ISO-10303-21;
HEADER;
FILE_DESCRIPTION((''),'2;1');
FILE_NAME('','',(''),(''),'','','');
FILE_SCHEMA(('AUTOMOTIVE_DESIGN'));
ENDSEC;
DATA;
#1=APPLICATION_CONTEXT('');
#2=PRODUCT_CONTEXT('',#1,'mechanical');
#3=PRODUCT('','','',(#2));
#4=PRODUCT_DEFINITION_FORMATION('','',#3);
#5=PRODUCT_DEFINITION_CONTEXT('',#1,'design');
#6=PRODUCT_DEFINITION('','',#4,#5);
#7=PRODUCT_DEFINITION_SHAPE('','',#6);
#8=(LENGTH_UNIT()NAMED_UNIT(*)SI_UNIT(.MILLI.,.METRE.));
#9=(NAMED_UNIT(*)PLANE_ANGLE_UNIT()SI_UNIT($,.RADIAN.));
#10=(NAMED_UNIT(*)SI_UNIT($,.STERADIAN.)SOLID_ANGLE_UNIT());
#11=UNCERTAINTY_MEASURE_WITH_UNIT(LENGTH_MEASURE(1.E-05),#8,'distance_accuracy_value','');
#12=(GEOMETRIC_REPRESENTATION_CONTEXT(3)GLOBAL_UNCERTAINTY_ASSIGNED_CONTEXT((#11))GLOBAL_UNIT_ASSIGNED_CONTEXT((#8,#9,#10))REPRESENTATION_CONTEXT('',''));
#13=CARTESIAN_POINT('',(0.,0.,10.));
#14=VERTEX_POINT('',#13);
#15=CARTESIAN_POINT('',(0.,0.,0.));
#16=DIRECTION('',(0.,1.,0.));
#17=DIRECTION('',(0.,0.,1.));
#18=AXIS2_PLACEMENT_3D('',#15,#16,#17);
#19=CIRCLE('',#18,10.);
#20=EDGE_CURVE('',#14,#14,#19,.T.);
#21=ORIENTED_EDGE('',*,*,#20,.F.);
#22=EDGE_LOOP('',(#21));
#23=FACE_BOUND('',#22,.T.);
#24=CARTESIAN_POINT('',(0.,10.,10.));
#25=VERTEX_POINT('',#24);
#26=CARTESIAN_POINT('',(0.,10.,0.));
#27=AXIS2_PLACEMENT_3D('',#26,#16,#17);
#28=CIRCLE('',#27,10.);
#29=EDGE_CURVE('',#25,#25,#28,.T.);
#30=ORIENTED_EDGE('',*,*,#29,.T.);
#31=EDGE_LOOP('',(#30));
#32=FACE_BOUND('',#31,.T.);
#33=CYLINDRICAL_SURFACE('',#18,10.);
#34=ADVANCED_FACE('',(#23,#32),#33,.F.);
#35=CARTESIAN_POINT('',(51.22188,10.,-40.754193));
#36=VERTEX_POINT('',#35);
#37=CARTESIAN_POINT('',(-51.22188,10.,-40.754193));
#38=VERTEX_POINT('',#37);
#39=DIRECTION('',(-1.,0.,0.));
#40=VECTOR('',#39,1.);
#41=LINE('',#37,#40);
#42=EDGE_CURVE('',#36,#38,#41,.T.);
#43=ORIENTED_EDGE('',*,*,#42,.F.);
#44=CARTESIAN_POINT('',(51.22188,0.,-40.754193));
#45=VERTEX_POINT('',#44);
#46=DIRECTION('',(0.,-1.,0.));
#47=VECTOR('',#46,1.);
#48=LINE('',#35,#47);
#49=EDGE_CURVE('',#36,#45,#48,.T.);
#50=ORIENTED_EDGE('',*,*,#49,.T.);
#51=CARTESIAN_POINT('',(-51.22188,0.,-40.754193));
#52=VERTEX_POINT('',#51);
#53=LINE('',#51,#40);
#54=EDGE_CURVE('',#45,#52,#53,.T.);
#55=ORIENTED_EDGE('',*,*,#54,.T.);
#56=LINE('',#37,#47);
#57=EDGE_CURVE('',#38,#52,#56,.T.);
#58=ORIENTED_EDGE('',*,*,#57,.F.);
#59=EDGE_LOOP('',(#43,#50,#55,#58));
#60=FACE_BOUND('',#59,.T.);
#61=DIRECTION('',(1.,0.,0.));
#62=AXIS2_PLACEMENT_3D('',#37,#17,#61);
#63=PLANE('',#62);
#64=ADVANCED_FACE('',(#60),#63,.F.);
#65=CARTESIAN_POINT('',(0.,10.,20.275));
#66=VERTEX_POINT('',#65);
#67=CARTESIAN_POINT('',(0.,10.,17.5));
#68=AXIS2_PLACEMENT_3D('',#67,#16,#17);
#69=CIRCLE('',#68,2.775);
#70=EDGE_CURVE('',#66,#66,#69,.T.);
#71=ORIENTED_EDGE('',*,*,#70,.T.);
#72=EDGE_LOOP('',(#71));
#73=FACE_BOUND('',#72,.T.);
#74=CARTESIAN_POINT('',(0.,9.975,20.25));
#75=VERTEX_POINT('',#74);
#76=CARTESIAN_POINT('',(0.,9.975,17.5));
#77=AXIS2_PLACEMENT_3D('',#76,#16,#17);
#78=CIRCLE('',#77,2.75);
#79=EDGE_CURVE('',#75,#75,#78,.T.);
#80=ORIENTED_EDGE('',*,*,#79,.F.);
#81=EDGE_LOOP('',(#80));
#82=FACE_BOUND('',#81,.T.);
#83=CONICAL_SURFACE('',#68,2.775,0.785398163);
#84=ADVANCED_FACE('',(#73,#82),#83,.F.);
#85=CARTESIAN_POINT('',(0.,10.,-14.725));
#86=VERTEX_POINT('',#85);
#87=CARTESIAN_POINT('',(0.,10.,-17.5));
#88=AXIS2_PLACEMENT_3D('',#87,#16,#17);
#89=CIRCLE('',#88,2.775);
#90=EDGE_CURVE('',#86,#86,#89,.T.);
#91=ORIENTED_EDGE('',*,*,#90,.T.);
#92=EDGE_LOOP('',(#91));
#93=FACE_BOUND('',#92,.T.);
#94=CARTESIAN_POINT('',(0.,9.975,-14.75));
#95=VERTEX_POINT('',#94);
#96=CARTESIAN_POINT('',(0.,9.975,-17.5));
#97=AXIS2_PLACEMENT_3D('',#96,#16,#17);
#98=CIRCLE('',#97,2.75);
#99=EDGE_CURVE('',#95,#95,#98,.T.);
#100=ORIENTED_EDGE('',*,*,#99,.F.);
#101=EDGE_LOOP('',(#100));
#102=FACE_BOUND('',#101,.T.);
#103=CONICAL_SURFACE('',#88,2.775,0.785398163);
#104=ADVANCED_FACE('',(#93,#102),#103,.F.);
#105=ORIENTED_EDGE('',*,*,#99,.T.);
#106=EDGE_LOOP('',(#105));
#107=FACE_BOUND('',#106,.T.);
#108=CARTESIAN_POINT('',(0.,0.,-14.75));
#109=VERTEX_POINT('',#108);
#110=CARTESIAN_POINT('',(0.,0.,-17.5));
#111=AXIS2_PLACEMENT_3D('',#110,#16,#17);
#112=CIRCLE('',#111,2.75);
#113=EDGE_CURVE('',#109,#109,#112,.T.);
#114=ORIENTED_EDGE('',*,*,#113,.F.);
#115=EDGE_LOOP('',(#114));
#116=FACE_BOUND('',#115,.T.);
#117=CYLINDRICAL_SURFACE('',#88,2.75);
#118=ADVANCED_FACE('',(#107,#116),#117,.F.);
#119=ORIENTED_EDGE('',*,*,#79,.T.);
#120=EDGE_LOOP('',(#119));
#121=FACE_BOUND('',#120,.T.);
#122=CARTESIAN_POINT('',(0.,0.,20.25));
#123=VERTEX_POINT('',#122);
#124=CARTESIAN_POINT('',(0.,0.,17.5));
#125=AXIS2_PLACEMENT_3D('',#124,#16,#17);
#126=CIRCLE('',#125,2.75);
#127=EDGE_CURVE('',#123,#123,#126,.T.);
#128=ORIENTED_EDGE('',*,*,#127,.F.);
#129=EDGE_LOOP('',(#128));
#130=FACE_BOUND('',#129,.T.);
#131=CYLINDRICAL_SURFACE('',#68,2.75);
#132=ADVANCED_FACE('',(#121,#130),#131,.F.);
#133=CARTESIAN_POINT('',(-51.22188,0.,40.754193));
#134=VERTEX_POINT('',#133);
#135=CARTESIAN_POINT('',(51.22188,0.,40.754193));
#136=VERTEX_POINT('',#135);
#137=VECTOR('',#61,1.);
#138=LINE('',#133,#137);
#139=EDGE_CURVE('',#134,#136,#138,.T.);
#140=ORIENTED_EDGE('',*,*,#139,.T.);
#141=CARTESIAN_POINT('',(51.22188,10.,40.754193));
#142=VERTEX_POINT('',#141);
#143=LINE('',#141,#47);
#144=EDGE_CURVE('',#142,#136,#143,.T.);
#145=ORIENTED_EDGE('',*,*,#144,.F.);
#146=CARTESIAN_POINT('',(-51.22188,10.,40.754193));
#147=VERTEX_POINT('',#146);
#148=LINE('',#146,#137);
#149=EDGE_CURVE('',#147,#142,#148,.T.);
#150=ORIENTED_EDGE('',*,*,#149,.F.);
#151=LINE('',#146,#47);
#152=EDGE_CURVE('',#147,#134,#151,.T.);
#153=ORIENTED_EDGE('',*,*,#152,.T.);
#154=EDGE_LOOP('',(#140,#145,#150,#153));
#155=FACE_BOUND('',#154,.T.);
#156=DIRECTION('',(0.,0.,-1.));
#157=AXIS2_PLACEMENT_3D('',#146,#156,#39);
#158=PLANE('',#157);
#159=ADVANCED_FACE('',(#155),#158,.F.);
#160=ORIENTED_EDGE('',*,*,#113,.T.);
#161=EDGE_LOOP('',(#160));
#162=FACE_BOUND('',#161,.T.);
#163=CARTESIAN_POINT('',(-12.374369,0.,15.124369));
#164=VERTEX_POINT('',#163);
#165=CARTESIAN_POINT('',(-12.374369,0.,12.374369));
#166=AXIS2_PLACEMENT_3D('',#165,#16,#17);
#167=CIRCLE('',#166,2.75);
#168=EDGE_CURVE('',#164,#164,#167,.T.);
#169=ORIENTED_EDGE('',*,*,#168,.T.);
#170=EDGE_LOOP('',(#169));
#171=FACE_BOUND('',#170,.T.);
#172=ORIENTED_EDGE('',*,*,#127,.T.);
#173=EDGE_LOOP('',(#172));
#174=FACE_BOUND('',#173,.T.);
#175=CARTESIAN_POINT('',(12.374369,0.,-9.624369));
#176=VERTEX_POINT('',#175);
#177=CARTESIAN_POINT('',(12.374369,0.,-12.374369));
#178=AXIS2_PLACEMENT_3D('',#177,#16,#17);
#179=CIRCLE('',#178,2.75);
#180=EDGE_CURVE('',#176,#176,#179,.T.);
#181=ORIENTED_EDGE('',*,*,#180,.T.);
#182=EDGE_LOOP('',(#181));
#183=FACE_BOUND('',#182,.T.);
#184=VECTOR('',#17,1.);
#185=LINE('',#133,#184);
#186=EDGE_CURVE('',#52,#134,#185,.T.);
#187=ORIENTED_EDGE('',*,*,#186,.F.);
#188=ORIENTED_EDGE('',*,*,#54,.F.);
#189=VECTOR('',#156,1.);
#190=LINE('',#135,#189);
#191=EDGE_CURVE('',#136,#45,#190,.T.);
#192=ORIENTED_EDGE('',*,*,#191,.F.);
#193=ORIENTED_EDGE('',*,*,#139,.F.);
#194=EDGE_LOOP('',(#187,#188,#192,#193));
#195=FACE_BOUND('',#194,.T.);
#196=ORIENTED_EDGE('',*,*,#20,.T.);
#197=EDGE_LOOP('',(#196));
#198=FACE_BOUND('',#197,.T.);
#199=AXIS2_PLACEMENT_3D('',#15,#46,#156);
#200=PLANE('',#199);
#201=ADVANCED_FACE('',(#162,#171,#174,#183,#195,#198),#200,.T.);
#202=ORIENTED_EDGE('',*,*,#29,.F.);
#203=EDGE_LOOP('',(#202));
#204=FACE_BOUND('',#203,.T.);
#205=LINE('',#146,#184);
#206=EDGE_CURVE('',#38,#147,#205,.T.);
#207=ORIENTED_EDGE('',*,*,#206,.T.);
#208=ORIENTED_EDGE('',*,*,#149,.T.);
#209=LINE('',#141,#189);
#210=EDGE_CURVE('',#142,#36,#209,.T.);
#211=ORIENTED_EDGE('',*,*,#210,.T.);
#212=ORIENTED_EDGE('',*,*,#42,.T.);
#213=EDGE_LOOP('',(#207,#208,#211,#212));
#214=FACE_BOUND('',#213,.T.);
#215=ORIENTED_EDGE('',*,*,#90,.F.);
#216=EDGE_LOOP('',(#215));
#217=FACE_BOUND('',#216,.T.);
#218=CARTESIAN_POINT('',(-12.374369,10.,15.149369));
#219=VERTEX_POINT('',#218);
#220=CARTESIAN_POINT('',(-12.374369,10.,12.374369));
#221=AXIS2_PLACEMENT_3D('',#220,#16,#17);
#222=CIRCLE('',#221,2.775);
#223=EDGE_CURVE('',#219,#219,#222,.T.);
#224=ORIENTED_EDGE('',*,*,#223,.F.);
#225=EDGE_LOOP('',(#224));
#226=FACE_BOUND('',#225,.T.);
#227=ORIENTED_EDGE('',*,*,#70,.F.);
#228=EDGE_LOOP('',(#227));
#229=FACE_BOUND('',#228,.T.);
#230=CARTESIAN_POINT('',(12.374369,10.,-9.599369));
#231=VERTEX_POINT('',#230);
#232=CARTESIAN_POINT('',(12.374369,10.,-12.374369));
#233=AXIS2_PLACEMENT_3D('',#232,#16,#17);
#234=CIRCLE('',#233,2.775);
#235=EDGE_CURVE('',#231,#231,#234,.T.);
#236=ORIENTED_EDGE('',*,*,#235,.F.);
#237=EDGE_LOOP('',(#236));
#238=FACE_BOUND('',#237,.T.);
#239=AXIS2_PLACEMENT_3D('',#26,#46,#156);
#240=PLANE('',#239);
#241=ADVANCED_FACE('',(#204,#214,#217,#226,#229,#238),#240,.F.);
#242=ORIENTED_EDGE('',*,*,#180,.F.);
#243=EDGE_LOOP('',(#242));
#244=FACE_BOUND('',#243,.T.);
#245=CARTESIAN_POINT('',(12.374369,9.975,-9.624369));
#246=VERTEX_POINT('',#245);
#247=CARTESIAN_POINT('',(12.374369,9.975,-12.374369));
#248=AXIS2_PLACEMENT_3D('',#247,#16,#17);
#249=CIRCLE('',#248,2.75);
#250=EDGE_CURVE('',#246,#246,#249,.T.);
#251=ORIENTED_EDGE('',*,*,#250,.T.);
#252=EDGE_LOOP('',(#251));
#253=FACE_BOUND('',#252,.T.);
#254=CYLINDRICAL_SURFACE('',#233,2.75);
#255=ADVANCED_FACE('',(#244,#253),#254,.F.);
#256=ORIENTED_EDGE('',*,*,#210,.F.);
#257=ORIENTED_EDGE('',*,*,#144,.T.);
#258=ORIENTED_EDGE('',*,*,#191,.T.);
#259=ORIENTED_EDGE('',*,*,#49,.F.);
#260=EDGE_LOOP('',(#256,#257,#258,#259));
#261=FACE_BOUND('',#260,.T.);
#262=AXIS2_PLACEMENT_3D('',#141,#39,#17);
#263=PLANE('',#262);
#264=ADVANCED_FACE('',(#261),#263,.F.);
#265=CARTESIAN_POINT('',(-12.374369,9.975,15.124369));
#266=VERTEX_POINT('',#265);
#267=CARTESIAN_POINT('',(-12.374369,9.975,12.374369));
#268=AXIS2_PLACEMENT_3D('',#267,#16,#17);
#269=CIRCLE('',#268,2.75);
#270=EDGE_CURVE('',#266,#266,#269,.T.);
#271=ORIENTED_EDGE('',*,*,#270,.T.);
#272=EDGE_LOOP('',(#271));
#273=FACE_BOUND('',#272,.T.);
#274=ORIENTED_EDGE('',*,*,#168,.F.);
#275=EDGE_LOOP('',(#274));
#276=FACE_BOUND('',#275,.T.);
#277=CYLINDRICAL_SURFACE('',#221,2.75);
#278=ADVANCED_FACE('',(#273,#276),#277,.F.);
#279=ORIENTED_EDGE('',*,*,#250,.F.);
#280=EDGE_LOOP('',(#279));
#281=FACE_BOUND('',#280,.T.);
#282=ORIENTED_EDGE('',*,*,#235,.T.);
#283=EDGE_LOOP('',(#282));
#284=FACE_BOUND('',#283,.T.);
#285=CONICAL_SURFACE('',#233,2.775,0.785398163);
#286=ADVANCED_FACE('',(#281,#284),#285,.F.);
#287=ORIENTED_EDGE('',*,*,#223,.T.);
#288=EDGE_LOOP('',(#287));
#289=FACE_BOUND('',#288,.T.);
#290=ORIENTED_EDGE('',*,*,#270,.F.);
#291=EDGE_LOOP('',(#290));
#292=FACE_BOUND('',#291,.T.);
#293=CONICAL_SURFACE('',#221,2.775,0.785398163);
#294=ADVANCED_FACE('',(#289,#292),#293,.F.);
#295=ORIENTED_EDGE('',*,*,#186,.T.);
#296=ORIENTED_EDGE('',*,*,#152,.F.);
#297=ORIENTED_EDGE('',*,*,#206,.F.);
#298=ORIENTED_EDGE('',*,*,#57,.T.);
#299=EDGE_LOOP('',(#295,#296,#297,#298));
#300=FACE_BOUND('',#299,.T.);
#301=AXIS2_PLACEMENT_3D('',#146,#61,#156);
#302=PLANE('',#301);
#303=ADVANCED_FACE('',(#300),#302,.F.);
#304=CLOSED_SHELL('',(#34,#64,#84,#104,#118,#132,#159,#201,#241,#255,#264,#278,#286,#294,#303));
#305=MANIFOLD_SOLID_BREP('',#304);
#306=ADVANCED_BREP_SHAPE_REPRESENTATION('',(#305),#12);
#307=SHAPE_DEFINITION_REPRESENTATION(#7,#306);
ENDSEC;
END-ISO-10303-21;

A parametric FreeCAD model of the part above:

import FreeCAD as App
import Part
import Sketcher

V = App.Vector


def add_polygon(sketch, points):
    """Adds a closed chain of lines whose ends are joined by coincident constraints."""
    first, n = sketch.GeometryCount, len(points)
    for a, b in zip(points, points[1:] + points[:1]):
        sketch.addGeometry(Part.LineSegment(App.Vector(*a, 0), App.Vector(*b, 0)), False)
    for i in range(n):
        sketch.addConstraint(Sketcher.Constraint("Coincident", first + i, 2, first + (i + 1) % n, 1))

doc = App.newDocument("Part")
params = doc.addObject("Spreadsheet::Sheet", "Params")
for row, (alias, value) in enumerate([
    ("pad1_length", "10 mm"),
    ("sketch2_diameter", "5.5 mm"),
    ("hole_diameter", "5.5 mm"),
    ("hole_csink_diameter", "5.55 mm"),
    ("sketch3_diameter", "20 mm"),
], start=1):
    params.set(f"A{row}", alias)
    params.set(f"B{row}", "=" + value)
    params.setAlias(f"B{row}", alias)

body = doc.addObject("PartDesign::Body", "Body")

sketch1 = doc.addObject("Sketcher::SketchObject", "Sketch")
body.addObject(sketch1)
sketch1.AttachmentSupport = (doc.XZ_Plane, [""])
sketch1.MapMode = "FlatFace"
add_polygon(sketch1, [(-51, -41), (-51, 41), (51, 41), (51, -41)])
sketch1.addConstraint([
    Sketcher.Constraint("Vertical", 0),
    Sketcher.Constraint("Horizontal", 1),
    Sketcher.Constraint("Vertical", 2),
    Sketcher.Constraint("Horizontal", 3),
    Sketcher.Constraint("Symmetric", 0, 2, 2, 2, -1, 1),
    Sketcher.Constraint("DistanceX", 1, 1, 1, 2, 102.443759),
    Sketcher.Constraint("DistanceY", 0, 1, 0, 2, 81.508386),
])
pad1 = doc.addObject("PartDesign::Pad", "Pad")
body.addObject(pad1)
pad1.Profile = sketch1
pad1.setExpression("Length", "Params.pad1_length")
pad1.Reversed = True

sketch2 = doc.addObject("Sketcher::SketchObject", "Sketch001")
body.addObject(sketch2)
sketch2.AttachmentSupport = (doc.XZ_Plane, [""])
sketch2.MapMode = "FlatFace"
sketch2.AttachmentOffset = App.Placement(V(0, 0, -10), App.Rotation())
sketch2.addGeometry([
    Part.Circle(V(-12.4, 12.4, 0), V(0, 0, 1), 2.8),
    Part.Circle(V(0, 17.5, 0), V(0, 0, 1), 2.8),
    Part.Circle(V(12.4, -12.4, 0), V(0, 0, 1), 2.8),
    Part.Circle(V(0, -17.5, 0), V(0, 0, 1), 2.8),
], False)
sketch2.addConstraint([
    Sketcher.Constraint("Equal", 0, 1),
    Sketcher.Constraint("Equal", 1, 2),
    Sketcher.Constraint("Equal", 2, 3),
    Sketcher.Constraint("Symmetric", 0, 3, 2, 3, -1, 1),
    Sketcher.Constraint("Symmetric", 1, 3, 3, 3, -1, 1),
    Sketcher.Constraint("PointOnObject", 1, 3, -2),
    Sketcher.Constraint("Diameter", 0, 5.5),
    Sketcher.Constraint("DistanceY", 3, 3, 1, 3, 35.0),
    Sketcher.Constraint("DistanceX", 0, 3, -1, 1, 12.374369),
    Sketcher.Constraint("DistanceY", -1, 1, 0, 3, 12.374369),
])
sketch2.setExpression("Constraints[6]", "Params.sketch2_diameter")
doc.recompute()
hole = doc.addObject("PartDesign::Hole", "Hole")
body.addObject(hole)
hole.Profile = sketch2
hole.ThreadType = "None"
hole.setExpression("Diameter", "Params.hole_diameter")
hole.DepthType = "ThroughAll"
hole.HoleCutType = "Countersink"
hole.setExpression("HoleCutDiameter", "Params.hole_csink_diameter")
hole.HoleCutCountersinkAngle = 90
hole.Reversed = True

sketch3 = doc.addObject("Sketcher::SketchObject", "Sketch002")
body.addObject(sketch3)
sketch3.AttachmentSupport = (doc.XZ_Plane, [""])
sketch3.MapMode = "FlatFace"
sketch3.AttachmentOffset = App.Placement(V(0, 0, -10), App.Rotation())
sketch3.addGeometry(Part.Circle(V(0, 0, 0), V(0, 0, 1), 10), False)
sketch3.addConstraint([
    Sketcher.Constraint("Coincident", 0, 3, -1, 1),
    Sketcher.Constraint("Diameter", 0, 20.0),
])
sketch3.setExpression("Constraints[1]", "Params.sketch3_diameter")
pocket1 = doc.addObject("PartDesign::Pocket", "Pocket")
body.addObject(pocket1)
pocket1.Profile = sketch3
pocket1.Type = "ThroughAll"
pocket1.Reversed = True

doc.recompute()
